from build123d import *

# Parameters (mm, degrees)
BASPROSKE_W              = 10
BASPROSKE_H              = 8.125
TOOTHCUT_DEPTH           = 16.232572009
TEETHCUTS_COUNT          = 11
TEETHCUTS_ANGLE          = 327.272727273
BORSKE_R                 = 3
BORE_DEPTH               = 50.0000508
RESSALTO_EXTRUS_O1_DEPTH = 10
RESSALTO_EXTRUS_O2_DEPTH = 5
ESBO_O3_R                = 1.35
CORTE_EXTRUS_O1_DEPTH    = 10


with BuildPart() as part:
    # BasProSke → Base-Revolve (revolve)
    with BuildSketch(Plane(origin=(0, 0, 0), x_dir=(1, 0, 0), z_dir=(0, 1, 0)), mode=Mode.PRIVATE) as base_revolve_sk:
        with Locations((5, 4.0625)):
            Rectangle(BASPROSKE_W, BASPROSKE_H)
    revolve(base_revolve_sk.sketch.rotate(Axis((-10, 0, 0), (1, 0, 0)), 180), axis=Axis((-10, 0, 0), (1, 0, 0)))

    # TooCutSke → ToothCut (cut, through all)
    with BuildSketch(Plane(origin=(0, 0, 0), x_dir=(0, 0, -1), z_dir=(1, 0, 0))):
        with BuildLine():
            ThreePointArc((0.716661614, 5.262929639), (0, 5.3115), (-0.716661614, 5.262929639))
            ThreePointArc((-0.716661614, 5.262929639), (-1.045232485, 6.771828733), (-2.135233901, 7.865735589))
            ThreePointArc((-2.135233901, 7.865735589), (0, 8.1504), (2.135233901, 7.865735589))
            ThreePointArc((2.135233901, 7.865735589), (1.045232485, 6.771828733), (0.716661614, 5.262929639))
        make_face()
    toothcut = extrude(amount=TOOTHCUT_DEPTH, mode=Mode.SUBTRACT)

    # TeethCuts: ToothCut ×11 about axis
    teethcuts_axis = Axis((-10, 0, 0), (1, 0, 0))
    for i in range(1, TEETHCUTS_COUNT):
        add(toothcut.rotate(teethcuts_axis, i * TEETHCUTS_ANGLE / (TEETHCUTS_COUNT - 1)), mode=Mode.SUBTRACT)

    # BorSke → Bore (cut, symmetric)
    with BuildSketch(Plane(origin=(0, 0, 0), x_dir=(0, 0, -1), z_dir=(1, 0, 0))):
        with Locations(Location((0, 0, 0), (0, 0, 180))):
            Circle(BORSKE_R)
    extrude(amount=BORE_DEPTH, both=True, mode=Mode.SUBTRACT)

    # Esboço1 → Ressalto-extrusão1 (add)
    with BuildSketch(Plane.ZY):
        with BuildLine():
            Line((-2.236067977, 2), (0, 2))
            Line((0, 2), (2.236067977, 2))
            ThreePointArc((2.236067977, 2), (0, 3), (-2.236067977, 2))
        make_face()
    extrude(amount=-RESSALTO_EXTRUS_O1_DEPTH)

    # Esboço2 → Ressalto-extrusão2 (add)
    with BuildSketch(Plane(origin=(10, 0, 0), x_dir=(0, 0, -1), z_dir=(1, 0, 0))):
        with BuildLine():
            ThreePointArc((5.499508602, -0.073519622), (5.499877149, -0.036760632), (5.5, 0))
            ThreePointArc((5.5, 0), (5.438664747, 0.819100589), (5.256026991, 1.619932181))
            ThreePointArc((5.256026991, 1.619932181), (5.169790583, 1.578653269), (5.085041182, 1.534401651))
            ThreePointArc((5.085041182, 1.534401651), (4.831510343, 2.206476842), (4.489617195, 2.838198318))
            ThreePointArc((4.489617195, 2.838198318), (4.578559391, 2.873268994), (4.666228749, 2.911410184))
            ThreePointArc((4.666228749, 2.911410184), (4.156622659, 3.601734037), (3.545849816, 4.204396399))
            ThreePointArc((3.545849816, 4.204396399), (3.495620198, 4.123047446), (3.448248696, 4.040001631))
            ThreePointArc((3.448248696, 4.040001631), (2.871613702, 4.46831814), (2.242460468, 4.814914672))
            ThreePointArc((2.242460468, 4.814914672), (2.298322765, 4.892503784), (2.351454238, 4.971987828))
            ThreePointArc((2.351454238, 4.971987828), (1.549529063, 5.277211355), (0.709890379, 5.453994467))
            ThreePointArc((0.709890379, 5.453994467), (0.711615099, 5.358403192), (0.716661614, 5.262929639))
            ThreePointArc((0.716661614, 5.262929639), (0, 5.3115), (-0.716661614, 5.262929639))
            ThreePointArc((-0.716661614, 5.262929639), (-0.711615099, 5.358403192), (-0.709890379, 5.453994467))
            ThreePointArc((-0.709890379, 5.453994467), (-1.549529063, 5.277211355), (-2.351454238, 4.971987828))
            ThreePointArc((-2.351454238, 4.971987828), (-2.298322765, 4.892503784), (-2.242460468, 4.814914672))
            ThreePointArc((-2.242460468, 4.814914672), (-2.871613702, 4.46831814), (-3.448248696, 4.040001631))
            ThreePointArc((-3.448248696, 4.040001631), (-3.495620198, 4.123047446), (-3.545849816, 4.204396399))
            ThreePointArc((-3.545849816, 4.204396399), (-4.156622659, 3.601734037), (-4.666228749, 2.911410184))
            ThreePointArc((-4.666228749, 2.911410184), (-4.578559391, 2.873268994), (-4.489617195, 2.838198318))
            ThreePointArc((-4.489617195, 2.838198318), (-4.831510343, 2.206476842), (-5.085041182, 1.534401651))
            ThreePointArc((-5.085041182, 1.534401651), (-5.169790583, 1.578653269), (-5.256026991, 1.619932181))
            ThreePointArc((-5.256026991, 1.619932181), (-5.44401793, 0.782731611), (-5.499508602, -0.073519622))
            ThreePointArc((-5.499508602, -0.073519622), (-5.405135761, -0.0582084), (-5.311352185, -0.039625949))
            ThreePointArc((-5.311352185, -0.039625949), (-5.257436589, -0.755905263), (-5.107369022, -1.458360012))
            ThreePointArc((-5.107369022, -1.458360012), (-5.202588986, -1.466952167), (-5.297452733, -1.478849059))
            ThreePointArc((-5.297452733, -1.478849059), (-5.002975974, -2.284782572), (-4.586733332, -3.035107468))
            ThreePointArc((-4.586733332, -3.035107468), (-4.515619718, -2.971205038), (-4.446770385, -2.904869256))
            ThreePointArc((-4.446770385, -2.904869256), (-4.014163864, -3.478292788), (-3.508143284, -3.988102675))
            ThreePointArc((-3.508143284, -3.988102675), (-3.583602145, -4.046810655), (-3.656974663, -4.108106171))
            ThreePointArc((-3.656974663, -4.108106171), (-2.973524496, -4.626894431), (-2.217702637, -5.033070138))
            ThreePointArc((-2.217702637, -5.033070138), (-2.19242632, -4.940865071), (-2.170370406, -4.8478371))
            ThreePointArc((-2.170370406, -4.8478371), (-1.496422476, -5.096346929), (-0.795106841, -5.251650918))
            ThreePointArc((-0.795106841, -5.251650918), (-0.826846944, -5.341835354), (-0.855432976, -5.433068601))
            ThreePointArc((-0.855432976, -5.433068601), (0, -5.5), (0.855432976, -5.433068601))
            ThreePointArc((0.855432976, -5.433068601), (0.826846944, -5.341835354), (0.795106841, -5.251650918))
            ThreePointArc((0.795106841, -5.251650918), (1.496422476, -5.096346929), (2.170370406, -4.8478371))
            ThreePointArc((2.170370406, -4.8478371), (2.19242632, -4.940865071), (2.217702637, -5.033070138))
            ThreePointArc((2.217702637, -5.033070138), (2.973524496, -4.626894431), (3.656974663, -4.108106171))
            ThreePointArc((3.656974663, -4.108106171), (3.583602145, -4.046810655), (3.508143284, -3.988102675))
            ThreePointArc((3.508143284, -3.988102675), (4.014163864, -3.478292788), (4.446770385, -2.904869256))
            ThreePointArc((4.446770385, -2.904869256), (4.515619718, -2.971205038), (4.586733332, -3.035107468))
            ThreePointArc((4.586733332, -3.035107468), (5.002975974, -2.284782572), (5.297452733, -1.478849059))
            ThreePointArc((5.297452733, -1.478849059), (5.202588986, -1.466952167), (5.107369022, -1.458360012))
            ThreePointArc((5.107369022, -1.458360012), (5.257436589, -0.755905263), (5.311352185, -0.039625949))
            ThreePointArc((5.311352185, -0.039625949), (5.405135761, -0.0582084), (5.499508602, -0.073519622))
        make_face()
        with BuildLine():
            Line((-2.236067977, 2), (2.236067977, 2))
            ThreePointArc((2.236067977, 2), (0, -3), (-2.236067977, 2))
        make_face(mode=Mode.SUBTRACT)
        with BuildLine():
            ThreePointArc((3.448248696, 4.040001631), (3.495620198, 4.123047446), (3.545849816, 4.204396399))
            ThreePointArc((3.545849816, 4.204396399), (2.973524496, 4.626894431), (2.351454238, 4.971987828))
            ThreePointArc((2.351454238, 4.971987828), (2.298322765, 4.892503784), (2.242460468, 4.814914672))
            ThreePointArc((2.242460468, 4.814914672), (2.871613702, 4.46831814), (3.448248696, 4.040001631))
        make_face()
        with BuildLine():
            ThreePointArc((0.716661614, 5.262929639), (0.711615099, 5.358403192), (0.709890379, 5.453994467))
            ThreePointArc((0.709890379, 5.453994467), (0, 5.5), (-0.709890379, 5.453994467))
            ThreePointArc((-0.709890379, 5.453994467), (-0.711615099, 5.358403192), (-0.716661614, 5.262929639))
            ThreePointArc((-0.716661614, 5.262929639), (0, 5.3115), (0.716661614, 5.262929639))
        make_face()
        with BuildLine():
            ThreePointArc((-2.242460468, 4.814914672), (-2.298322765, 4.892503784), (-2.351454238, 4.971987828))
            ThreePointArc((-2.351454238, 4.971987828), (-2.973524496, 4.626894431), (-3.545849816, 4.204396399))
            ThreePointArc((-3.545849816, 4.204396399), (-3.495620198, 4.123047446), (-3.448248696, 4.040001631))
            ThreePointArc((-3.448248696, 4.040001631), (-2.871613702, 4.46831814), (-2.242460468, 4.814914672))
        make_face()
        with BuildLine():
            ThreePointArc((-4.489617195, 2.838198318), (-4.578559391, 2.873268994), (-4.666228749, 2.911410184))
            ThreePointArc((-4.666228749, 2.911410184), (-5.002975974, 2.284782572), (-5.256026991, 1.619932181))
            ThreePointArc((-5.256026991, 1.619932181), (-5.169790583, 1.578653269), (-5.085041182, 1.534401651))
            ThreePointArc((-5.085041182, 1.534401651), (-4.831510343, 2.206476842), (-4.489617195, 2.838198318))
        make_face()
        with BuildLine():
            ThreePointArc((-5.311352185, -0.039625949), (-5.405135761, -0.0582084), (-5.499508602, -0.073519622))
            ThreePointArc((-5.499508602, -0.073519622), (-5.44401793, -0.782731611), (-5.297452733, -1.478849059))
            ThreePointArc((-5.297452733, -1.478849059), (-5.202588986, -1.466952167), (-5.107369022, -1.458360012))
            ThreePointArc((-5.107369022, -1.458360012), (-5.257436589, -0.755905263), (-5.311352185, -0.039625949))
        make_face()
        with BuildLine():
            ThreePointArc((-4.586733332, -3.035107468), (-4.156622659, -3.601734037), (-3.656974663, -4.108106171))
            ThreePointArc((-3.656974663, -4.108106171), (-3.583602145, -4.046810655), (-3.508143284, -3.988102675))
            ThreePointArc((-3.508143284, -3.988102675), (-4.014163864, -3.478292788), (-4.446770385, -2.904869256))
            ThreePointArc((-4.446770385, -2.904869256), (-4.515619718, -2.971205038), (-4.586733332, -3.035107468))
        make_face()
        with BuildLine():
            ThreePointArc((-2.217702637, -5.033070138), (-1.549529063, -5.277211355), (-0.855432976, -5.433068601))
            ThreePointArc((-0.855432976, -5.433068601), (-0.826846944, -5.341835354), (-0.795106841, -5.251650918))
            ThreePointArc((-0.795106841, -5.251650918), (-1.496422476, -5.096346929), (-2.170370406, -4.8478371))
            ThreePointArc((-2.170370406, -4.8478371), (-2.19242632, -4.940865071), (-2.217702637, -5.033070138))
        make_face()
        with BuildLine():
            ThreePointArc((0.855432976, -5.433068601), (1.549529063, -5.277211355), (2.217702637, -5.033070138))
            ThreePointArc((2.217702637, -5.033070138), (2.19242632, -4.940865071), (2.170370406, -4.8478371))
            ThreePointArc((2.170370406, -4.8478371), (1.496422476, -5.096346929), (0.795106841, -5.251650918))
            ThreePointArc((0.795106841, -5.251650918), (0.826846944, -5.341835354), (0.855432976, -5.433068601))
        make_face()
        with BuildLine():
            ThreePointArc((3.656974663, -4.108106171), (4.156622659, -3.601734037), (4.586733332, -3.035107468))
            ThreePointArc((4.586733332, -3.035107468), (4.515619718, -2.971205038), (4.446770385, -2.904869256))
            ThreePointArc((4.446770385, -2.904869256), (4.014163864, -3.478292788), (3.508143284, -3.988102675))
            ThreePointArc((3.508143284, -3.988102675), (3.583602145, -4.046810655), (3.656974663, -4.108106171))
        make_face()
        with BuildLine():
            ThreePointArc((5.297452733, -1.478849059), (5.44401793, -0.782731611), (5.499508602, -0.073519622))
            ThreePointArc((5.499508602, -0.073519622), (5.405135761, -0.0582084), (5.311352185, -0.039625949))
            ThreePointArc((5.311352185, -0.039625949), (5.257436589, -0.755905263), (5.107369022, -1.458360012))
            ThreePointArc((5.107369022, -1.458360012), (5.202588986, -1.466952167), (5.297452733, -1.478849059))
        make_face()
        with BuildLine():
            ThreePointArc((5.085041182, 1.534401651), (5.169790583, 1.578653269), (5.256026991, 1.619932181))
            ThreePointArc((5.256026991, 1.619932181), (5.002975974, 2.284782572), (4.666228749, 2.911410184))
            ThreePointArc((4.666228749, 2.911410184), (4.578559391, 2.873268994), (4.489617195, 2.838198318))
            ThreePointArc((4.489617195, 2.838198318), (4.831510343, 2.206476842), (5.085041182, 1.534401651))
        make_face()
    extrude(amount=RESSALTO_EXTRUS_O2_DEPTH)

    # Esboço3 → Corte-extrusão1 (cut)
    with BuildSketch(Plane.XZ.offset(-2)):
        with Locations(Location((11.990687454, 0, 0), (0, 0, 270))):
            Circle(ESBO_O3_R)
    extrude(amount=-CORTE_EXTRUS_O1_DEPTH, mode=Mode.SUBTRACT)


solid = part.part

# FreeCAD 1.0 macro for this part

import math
import FreeCAD as App
import Part
import Sketcher
from FreeCAD import Vector
Q = App.Units.Quantity

doc = App.newDocument("Part")
body = doc.addObject("PartDesign::Body", "Body")

sketch1 = body.newObject("Sketcher::SketchObject", "Sketch")
sketch1.AttachmentSupport = (doc.getObject("XZ_Plane"), [""])
sketch1.MapMode = "FlatFace"
sketch1.addGeometry([
    Part.LineSegment(Vector(0, -8, 0), Vector(0, 0, 0)),
    Part.LineSegment(Vector(0, 0, 0), Vector(10, 0, 0)),
    Part.LineSegment(Vector(10, 0, 0), Vector(10, -8, 0)),
    Part.LineSegment(Vector(10, -8, 0), Vector(0, -8, 0)),
], False)
sketch1.addConstraint([
    Sketcher.Constraint("Coincident", 0, 2, 1, 1),
    Sketcher.Constraint("Coincident", 1, 2, 2, 1),
    Sketcher.Constraint("Coincident", 2, 2, 3, 1),
    Sketcher.Constraint("Coincident", 3, 2, 0, 1),
    Sketcher.Constraint("Vertical", 0),
    Sketcher.Constraint("Horizontal", 1),
    Sketcher.Constraint("Vertical", 2),
    Sketcher.Constraint("Horizontal", 3),
    Sketcher.Constraint("Coincident", 0, 2, -1, 1),
    Sketcher.Constraint("DistanceX", 1, 1, 1, 2, Q("10 mm")),
    Sketcher.Constraint("DistanceY", 0, 1, 0, 2, Q("8.125 mm")),
])
revolution = body.newObject("PartDesign::Revolution", "Revolution")
revolution.Profile = sketch1
revolution.ReferenceAxis = (sketch1, ["H_Axis"])
revolution.Angle = 360

sketch2 = body.newObject("Sketcher::SketchObject", "Sketch001")
sketch2.AttachmentSupport = (doc.getObject("YZ_Plane"), [""])
sketch2.MapMode = "FlatFace"
sketch2.addGeometry([
    Part.ArcOfCircle(Part.Circle(Vector(0, 0, 0), Vector(0, 0, 1), 5.3), math.radians(-7.75), math.radians(7.75)),
    Part.ArcOfCircle(Part.Circle(Vector(5.5, -3.5, 0), Vector(0, 0, 1), 2.7), math.radians(29), math.radians(94)),
    Part.ArcOfCircle(Part.Circle(Vector(0, 0, 0), Vector(0, 0, 1), 8.2), math.radians(-15), math.radians(15)),
    Part.ArcOfCircle(Part.Circle(Vector(5.5, 3.5, 0), Vector(0, 0, 1), 2.7), math.radians(-94), math.radians(-29)),
], False)
sketch2.addConstraint([
    Sketcher.Constraint("Coincident", 0, 1, 1, 2),
    Sketcher.Constraint("Coincident", 1, 1, 2, 1),
    Sketcher.Constraint("Coincident", 2, 2, 3, 2),
    Sketcher.Constraint("Coincident", 3, 1, 0, 2),
    Sketcher.Constraint("Coincident", 0, 3, -1, 1),
    Sketcher.Constraint("Coincident", 2, 3, -1, 1),
    Sketcher.Constraint("Equal", 1, 3),
    Sketcher.Constraint("Symmetric", 1, 3, 3, 3, -1),
    Sketcher.Constraint("Radius", 1, Q("2.75 mm")),
    Sketcher.Constraint("Radius", 0, Q("5.3115 mm")),
    Sketcher.Constraint("Radius", 2, Q("8.1504 mm")),
    Sketcher.Constraint("DistanceX", -1, 1, 1, 3, Q("5.455801 mm")),
    Sketcher.Constraint("DistanceY", 1, 3, -1, 1, Q("3.45989 mm")),
])
pocket1 = body.newObject("PartDesign::Pocket", "Pocket")
pocket1.Profile = sketch2
pocket1.Type = "ThroughAll"
pocket1.Reversed = True
doc.recompute()

polarpattern = body.newObject("PartDesign::PolarPattern", "PolarPattern")
polarpattern.Originals = [pocket1]
polarpattern.Axis = (doc.getObject("X_Axis"), [""])
polarpattern.Angle = 360
polarpattern.Occurrences = 11
body.Tip = polarpattern

sketch3 = body.newObject("Sketcher::SketchObject", "Sketch002")
sketch3.AttachmentSupport = (doc.getObject("YZ_Plane"), [""])
sketch3.MapMode = "FlatFace"
sketch3.addGeometry(Part.Circle(Vector(0, 0, 0), Vector(0, 0, 1), 3), False)
sketch3.addConstraint([
    Sketcher.Constraint("Coincident", 0, 3, -1, 1),
    Sketcher.Constraint("Diameter", 0, Q("6 mm")),
])
pocket2 = body.newObject("PartDesign::Pocket", "Pocket001")
pocket2.Profile = sketch3
pocket2.Length = 100.000102
pocket2.Midplane = True

sketch4 = body.newObject("Sketcher::SketchObject", "Sketch003")
sketch4.AttachmentSupport = (doc.getObject("YZ_Plane"), [""])
sketch4.MapMode = "FlatFace"
sketch4.addGeometry([
    Part.LineSegment(Vector(2, -2.2, 0), Vector(2, 2.2, 0)),
    Part.ArcOfCircle(Part.Circle(Vector(0, 0, 0), Vector(0, 0, 1), 3), math.radians(-48), math.radians(48)),
], False)
sketch4.addConstraint([
    Sketcher.Constraint("Coincident", 0, 1, 1, 1),
    Sketcher.Constraint("Coincident", 1, 2, 0, 2),
    Sketcher.Constraint("Vertical", 0),
    Sketcher.Constraint("Coincident", 1, 3, -1, 1),
    Sketcher.Constraint("Radius", 1, Q("3 mm")),
    Sketcher.Constraint("DistanceX", -1, 1, 0, 1, Q("2 mm")),
])
pad1 = body.newObject("PartDesign::Pad", "Pad")
pad1.Profile = sketch4
pad1.Length = 10

sketch5 = body.newObject("Sketcher::SketchObject", "Sketch004")
sketch5.AttachmentSupport = (doc.getObject("YZ_Plane"), [""])
sketch5.MapMode = "FlatFace"
sketch5.AttachmentOffset = App.Placement(Vector(0, 0, 10), App.Rotation())
sketch5.addGeometry([
    Part.ArcOfCircle(Part.Circle(Vector(0, 0, 0), Vector(0, 0, 1), 5.5), math.radians(-90.77), math.radians(-90)),
    Part.ArcOfCircle(Part.Circle(Vector(0, 0, 0), Vector(0, 0, 1), 5.5), math.radians(-90), math.radians(-72.87)),
    Part.ArcOfCircle(Part.Circle(Vector(0, 0, 0), Vector(0, 0, 1), 5.5), math.radians(-72.87), math.radians(-58.04)),
    Part.ArcOfCircle(Part.Circle(Vector(0, 0, 0), Vector(0, 0, 1), 5.5), math.radians(-58.04), math.radians(-40.14)),
    Part.ArcOfCircle(Part.Circle(Vector(0, 0, 0), Vector(0, 0, 1), 5.5), math.radians(-40.14), math.radians(-25.31)),
    Part.ArcOfCircle(Part.Circle(Vector(0, 0, 0), Vector(0, 0, 1), 5.5), math.radians(-25.31), math.radians(-7.42)),
    Part.ArcOfCircle(Part.Circle(Vector(0, 0, 0), Vector(0, 0, 1), 5.5), math.radians(-7.42), math.radians(7.42)),
    Part.ArcOfCircle(Part.Circle(Vector(0, 0, 0), Vector(0, 0, 1), 5.5), math.radians(7.42), math.radians(25.31)),
    Part.ArcOfCircle(Part.Circle(Vector(0, 0, 0), Vector(0, 0, 1), 5.5), math.radians(25.31), math.radians(40.14)),
    Part.ArcOfCircle(Part.Circle(Vector(0, 0, 0), Vector(0, 0, 1), 5.5), math.radians(40.14), math.radians(58.04)),
    Part.ArcOfCircle(Part.Circle(Vector(0, 0, 0), Vector(0, 0, 1), 5.5), math.radians(58.04), math.radians(72.87)),
    Part.ArcOfCircle(Part.Circle(Vector(0, 0, 0), Vector(0, 0, 1), 5.5), math.radians(72.87), math.radians(90.77)),
    Part.ArcOfCircle(Part.Circle(Vector(0, 0, 0), Vector(0, 0, 1), 5.5), math.radians(90.77), math.radians(105.6)),
    Part.ArcOfCircle(Part.Circle(Vector(0, 0, 0), Vector(0, 0, 1), 5.5), math.radians(105.6), math.radians(123.49)),
    Part.ArcOfCircle(Part.Circle(Vector(0, 0, 0), Vector(0, 0, 1), 5.5), math.radians(123.49), math.radians(138.33)),
    Part.ArcOfCircle(Part.Circle(Vector(0, 0, 0), Vector(0, 0, 1), 5.5), math.radians(138.33), math.radians(156.22)),
    Part.ArcOfCircle(Part.Circle(Vector(0, 0, 0), Vector(0, 0, 1), 5.5), math.radians(156.22), math.radians(171.05)),
    Part.ArcOfCircle(Part.Circle(Vector(0, 0, 0), Vector(0, 0, 1), 5.5), math.radians(171.05), math.radians(188.95)),
    Part.ArcOfCircle(Part.Circle(Vector(0, 0, 0), Vector(0, 0, 1), 5.5), math.radians(-171.05), math.radians(-156.22)),
    Part.ArcOfCircle(Part.Circle(Vector(0, 0, 0), Vector(0, 0, 1), 5.5), math.radians(-156.22), math.radians(-138.33)),
    Part.ArcOfCircle(Part.Circle(Vector(0, 0, 0), Vector(0, 0, 1), 5.5), math.radians(-138.33), math.radians(-123.49)),
    Part.ArcOfCircle(Part.Circle(Vector(0, 0, 0), Vector(0, 0, 1), 5.5), math.radians(-123.49), math.radians(-105.6)),
    Part.ArcOfCircle(Part.Circle(Vector(0, 0, 0), Vector(0, 0, 1), 5.5), math.radians(-105.6), math.radians(-90.77)),
    Part.ArcOfCircle(Part.Circle(Vector(0, 0, 0), Vector(0, 0, 1), 3), math.radians(48), math.radians(312)),
    Part.LineSegment(Vector(2, 2.24, 0), Vector(2, -2.24, 0)),
], False)
sketch5.addConstraint([
    Sketcher.Constraint("Tangent", 0, 2, 1, 1),
    Sketcher.Constraint("Tangent", 1, 2, 2, 1),
    Sketcher.Constraint("Tangent", 2, 2, 3, 1),
    Sketcher.Constraint("Tangent", 3, 2, 4, 1),
    Sketcher.Constraint("Tangent", 4, 2, 5, 1),
    Sketcher.Constraint("Tangent", 5, 2, 6, 1),
    Sketcher.Constraint("Tangent", 6, 2, 7, 1),
    Sketcher.Constraint("Tangent", 7, 2, 8, 1),
    Sketcher.Constraint("Tangent", 8, 2, 9, 1),
    Sketcher.Constraint("Tangent", 9, 2, 10, 1),
    Sketcher.Constraint("Tangent", 10, 2, 11, 1),
    Sketcher.Constraint("Tangent", 11, 2, 12, 1),
    Sketcher.Constraint("Tangent", 12, 2, 13, 1),
    Sketcher.Constraint("Tangent", 13, 2, 14, 1),
    Sketcher.Constraint("Tangent", 14, 2, 15, 1),
    Sketcher.Constraint("Tangent", 15, 2, 16, 1),
    Sketcher.Constraint("Tangent", 16, 2, 17, 1),
    Sketcher.Constraint("Tangent", 17, 2, 18, 1),
    Sketcher.Constraint("Tangent", 18, 2, 19, 1),
    Sketcher.Constraint("Tangent", 19, 2, 20, 1),
    Sketcher.Constraint("Tangent", 20, 2, 21, 1),
    Sketcher.Constraint("Tangent", 21, 2, 22, 1),
    Sketcher.Constraint("Tangent", 22, 2, 0, 1),
    Sketcher.Constraint("Coincident", 23, 1, 24, 1),
    Sketcher.Constraint("Coincident", 24, 2, 23, 2),
    Sketcher.Constraint("Vertical", 24),
    Sketcher.Constraint("Coincident", 0, 3, -1, 1),
    Sketcher.Constraint("Coincident", 2, 3, -1, 1),
    Sketcher.Constraint("Coincident", 4, 3, -1, 1),
    Sketcher.Constraint("Coincident", 6, 3, -1, 1),
    Sketcher.Constraint("Coincident", 8, 3, -1, 1),
    Sketcher.Constraint("Coincident", 10, 3, -1, 1),
    Sketcher.Constraint("Coincident", 12, 3, -1, 1),
    Sketcher.Constraint("Coincident", 14, 3, -1, 1),
    Sketcher.Constraint("Coincident", 16, 3, -1, 1),
    Sketcher.Constraint("Coincident", 18, 3, -1, 1),
    Sketcher.Constraint("Coincident", 20, 3, -1, 1),
    Sketcher.Constraint("Coincident", 23, 3, -1, 1),
    Sketcher.Constraint("PointOnObject", 0, 2, -2),
    Sketcher.Constraint("Vertical", 5, 2, 6, 2),
    Sketcher.Constraint("Vertical", 4, 2, 7, 2),
    Sketcher.Constraint("Vertical", 3, 2, 8, 2),
    Sketcher.Constraint("Vertical", 2, 2, 9, 2),
    Sketcher.Constraint("Vertical", 1, 2, 10, 2),
    Sketcher.Constraint("Vertical", 16, 2, 17, 2),
    Sketcher.Constraint("Vertical", 15, 2, 18, 2),
    Sketcher.Constraint("Vertical", 14, 2, 19, 2),
    Sketcher.Constraint("Vertical", 13, 2, 20, 2),
    Sketcher.Constraint("Vertical", 12, 2, 21, 2),
    Sketcher.Constraint("Vertical", 11, 2, 22, 2),
    Sketcher.Constraint("Radius", 23, Q("3 mm")),
    Sketcher.Constraint("Radius", 1, Q("5.5 mm")),
    Sketcher.Constraint("DistanceX", -1, 1, 23, 1, Q("2 mm")),
    Sketcher.Constraint("DistanceX", 16, 2, 15, 2, Q("0.399998 mm")),
    Sketcher.Constraint("DistanceX", 14, 2, 13, 2, Q("1.072999 mm")),
    Sketcher.Constraint("DistanceY", 1, 2, 2, 2, Q("0.589798 mm")),
    Sketcher.Constraint("DistanceX", 3, 2, 5, 2, Q("1.249598 mm")),
    Sketcher.Constraint("DistanceY", 0, 3, 15, 2, Q("2.217699 mm")),
    Sketcher.Constraint("DistanceY", 16, 2, 13, 2, Q("3.7313 mm")),
    Sketcher.Constraint("DistanceX", -1, 1, 2, 2, Q("2.91141 mm")),
    Sketcher.Constraint("DistanceY", 3, 2, -1, 1, Q("3.54585 mm")),
    Sketcher.Constraint("DistanceX", 11, 2, -1, 1, Q("0.07352 mm")),
    Sketcher.Constraint("DistanceX", 12, 2, -1, 1, Q("1.478849 mm")),
    Sketcher.Constraint("DistanceX", 3, 2, 4, 2, Q("0.767591 mm")),
])
pad2 = body.newObject("PartDesign::Pad", "Pad001")
pad2.Profile = sketch5
pad2.Length = 5

sketch6 = body.newObject("Sketcher::SketchObject", "Sketch005")
sketch6.AttachmentSupport = (doc.getObject("XZ_Plane"), [""])
sketch6.MapMode = "FlatFace"
sketch6.AttachmentOffset = App.Placement(Vector(0, 0, -2), App.Rotation())
sketch6.addGeometry(Part.Circle(Vector(12, 0, 0), Vector(0, 0, 1), 1.4), False)
sketch6.addConstraint([
    Sketcher.Constraint("PointOnObject", 0, 3, -1),
    Sketcher.Constraint("Diameter", 0, Q("2.7 mm")),
    Sketcher.Constraint("DistanceX", -1, 1, 0, 3, Q("11.990687 mm")),
])
pocket3 = body.newObject("PartDesign::Pocket", "Pocket002")
pocket3.Profile = sketch6
pocket3.Length = 10

doc.recompute()
